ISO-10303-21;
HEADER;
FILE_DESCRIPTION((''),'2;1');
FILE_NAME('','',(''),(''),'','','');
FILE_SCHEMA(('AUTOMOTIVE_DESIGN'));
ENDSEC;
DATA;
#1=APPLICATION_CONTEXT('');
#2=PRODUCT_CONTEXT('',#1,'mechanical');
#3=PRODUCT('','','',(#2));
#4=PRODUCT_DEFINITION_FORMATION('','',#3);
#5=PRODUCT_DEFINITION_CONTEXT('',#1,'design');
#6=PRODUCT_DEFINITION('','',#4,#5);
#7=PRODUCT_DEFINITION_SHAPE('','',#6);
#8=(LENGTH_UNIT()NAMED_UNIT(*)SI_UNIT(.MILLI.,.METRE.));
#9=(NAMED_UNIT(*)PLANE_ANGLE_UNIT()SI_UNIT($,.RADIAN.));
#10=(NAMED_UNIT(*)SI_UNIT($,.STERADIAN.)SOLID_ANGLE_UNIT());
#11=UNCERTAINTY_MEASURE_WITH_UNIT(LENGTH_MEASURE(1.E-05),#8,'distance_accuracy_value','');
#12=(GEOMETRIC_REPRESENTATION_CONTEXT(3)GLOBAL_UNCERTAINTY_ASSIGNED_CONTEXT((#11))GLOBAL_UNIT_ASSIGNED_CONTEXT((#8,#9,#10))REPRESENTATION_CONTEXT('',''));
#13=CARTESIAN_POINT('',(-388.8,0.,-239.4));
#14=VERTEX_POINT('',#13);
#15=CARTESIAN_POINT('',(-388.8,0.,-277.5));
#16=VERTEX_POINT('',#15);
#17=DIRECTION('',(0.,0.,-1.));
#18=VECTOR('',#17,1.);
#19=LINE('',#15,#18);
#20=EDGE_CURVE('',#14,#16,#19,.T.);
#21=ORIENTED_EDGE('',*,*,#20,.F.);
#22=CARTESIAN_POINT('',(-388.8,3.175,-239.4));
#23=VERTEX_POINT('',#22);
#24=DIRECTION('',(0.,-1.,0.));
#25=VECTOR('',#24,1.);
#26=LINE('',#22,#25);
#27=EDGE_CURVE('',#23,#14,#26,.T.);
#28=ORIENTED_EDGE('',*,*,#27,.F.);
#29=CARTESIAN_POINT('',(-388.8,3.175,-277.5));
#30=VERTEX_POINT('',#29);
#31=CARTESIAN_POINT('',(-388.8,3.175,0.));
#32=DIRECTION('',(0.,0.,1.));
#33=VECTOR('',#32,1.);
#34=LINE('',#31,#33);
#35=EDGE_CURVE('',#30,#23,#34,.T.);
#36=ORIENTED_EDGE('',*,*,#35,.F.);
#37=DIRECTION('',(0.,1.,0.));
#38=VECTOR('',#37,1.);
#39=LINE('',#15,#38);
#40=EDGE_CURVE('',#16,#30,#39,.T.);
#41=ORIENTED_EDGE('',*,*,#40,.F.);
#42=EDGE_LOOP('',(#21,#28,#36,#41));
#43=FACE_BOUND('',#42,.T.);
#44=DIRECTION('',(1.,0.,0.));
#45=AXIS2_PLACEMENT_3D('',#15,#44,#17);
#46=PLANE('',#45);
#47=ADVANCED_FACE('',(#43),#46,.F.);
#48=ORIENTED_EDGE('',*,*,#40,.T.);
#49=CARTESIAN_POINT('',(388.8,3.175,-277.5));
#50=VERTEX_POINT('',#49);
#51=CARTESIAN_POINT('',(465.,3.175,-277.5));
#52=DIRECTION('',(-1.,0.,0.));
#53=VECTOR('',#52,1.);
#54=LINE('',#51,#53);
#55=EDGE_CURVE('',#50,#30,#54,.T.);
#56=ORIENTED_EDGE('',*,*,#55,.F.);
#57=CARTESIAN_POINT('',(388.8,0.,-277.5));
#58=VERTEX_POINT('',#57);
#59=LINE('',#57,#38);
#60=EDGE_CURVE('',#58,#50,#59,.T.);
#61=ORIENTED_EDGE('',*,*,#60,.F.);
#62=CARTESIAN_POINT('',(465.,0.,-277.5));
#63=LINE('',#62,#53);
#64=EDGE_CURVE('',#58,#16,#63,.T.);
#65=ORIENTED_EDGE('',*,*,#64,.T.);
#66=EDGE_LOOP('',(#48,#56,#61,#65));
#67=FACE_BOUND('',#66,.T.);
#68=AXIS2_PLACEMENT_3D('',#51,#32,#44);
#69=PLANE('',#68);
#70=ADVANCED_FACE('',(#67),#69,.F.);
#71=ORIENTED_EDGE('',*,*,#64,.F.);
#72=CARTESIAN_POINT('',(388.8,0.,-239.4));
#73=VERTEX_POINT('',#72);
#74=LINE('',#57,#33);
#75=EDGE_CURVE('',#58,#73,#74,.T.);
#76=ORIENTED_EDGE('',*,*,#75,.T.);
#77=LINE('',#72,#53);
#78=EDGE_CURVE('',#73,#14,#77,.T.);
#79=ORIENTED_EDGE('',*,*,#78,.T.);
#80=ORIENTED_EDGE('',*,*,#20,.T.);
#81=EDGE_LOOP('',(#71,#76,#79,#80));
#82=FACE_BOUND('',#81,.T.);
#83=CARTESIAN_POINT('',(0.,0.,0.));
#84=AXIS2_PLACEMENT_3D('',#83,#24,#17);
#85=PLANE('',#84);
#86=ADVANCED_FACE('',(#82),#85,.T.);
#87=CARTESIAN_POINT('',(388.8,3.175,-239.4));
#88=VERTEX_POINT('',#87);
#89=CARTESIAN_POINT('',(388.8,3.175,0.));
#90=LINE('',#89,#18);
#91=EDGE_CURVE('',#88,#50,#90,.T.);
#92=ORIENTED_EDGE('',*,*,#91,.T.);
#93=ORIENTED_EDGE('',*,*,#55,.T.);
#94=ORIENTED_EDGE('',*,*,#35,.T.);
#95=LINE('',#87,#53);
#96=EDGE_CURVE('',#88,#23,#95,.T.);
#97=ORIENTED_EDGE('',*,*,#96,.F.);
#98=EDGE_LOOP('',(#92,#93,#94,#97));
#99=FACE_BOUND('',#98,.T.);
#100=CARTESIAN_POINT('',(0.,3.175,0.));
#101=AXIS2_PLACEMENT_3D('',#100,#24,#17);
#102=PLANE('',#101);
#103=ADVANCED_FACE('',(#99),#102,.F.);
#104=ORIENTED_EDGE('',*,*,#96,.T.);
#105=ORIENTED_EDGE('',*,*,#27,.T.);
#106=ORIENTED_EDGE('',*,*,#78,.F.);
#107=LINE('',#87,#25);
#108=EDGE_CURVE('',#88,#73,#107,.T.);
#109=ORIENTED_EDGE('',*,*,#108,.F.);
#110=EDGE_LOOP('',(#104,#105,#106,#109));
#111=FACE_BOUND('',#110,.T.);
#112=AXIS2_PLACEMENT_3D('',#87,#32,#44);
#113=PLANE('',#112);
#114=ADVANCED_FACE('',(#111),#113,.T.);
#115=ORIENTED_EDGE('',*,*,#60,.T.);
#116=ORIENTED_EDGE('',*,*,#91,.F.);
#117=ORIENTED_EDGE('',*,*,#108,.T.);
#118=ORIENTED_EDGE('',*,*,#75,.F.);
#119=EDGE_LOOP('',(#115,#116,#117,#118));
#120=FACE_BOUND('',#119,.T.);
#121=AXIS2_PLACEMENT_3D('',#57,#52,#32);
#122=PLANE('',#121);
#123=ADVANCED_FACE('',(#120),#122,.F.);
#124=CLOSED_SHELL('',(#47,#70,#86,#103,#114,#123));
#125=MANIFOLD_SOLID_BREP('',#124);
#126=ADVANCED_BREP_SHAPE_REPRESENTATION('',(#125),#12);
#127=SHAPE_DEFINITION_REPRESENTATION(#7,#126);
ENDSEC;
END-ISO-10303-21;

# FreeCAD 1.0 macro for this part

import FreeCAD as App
import Part
import Sketcher
from FreeCAD import Vector


def add_polygon(sketch, points):
    """Adds a closed chain of lines whose ends are joined by coincident constraints."""
    first, n = sketch.GeometryCount, len(points)
    for a, b in zip(points, points[1:] + points[:1]):
        sketch.addGeometry(Part.LineSegment(App.Vector(*a, 0), App.Vector(*b, 0)), False)
    for i in range(n):
        sketch.addConstraint(Sketcher.Constraint("Coincident", first + i, 2, first + (i + 1) % n, 1))

doc = App.newDocument("Part")
params = doc.addObject("Spreadsheet::Sheet", "Params")
for row, (alias, value) in enumerate([
    ("sketch1_width", "930 mm"),
    ("sketch1_height", "555 mm"),
    ("sketch1_width2", "777.6 mm"),
    ("sketch1_height2", "478.8 mm"),
    ("pad1_length", "3.175 mm"),
    ("sketch2_width", "930 mm"),
    ("sketch2_height", "555 mm"),
    ("sketch2_width2", "76.2 mm"),
    ("sketch2_height2", "516.9 mm"),
], start=1):
    params.set(f"A{row}", alias)
    params.set(f"B{row}", "=" + value)
    params.setAlias(f"B{row}", alias)

body = doc.addObject("PartDesign::Body", "Body")

# Sketch on XZ plane
sketch1 = body.newObject("Sketcher::SketchObject", "Sketch")
sketch1.AttachmentSupport = (doc.getObject("XZ_Plane"), [""])
sketch1.MapMode = "FlatFace"
add_polygon(sketch1, [(-465, -278), (-465, 278), (465, 278), (465, -278)])  # lines 0-3
add_polygon(sketch1, [(389, 239), (-389, 239), (-389, -239), (389, -239)])  # lines 4-7
sketch1.addConstraint([
    Sketcher.Constraint("Vertical", 0),
    Sketcher.Constraint("Horizontal", 1),
    Sketcher.Constraint("Vertical", 2),
    Sketcher.Constraint("Horizontal", 3),
    Sketcher.Constraint("Horizontal", 4),
    Sketcher.Constraint("Vertical", 5),
    Sketcher.Constraint("Horizontal", 6),
    Sketcher.Constraint("Vertical", 7),
    Sketcher.Constraint("Symmetric", 0, 2, 2, 2, -1, 1),
    Sketcher.Constraint("Symmetric", 4, 2, 6, 2, -1, 1),
    Sketcher.Constraint("DistanceX", 1, 1, 1, 2, 930.0),
    Sketcher.Constraint("DistanceY", 0, 1, 0, 2, 555.0),
    Sketcher.Constraint("DistanceX", 4, 2, 4, 1, 777.6),
    Sketcher.Constraint("DistanceY", 5, 2, 5, 1, 478.8),
])
sketch1.setExpression("Constraints[18]", "Params.sketch1_width")
sketch1.setExpression("Constraints[19]", "Params.sketch1_height")
sketch1.setExpression("Constraints[20]", "Params.sketch1_width2")
sketch1.setExpression("Constraints[21]", "Params.sketch1_height2")
pad1 = body.newObject("PartDesign::Pad", "Pad")
pad1.Profile = sketch1
pad1.setExpression("Length", "Params.pad1_length")
pad1.Reversed = True

# Sketch on XZ plane
sketch2 = body.newObject("Sketcher::SketchObject", "Sketch001")
sketch2.AttachmentSupport = (doc.getObject("XZ_Plane"), [""])
sketch2.MapMode = "FlatFace"
sketch2.AttachmentOffset = App.Placement(Vector(0, 0, -3.175), App.Rotation())
add_polygon(sketch2, [(-389, -278), (-465, -278), (-465, 278), (465, 278), (465, -278), (389, -278), (389, 239), (-389, 239)])  # lines 0-7
sketch2.addConstraint([
    Sketcher.Constraint("Horizontal", 0),
    Sketcher.Constraint("Vertical", 1),
    Sketcher.Constraint("Horizontal", 2),
    Sketcher.Constraint("Vertical", 3),
    Sketcher.Constraint("Horizontal", 4),
    Sketcher.Constraint("Vertical", 5),
    Sketcher.Constraint("Horizontal", 6),
    Sketcher.Constraint("Vertical", 7),
    Sketcher.Constraint("Symmetric", 0, 2, 2, 2, -1, 1),
    Sketcher.Constraint("Symmetric", 4, 2, 7, 2, -2),
    Sketcher.Constraint("DistanceX", 2, 1, 2, 2, 930.0),
    Sketcher.Constraint("DistanceY", 1, 1, 1, 2, 555.0),
    Sketcher.Constraint("DistanceX", 0, 2, 0, 1, 76.2),
    Sketcher.Constraint("DistanceY", 5, 1, 5, 2, 516.9),
])
sketch2.setExpression("Constraints[18]", "Params.sketch2_width")
sketch2.setExpression("Constraints[19]", "Params.sketch2_height")
sketch2.setExpression("Constraints[20]", "Params.sketch2_width2")
sketch2.setExpression("Constraints[21]", "Params.sketch2_height2")
pocket1 = body.newObject("PartDesign::Pocket", "Pocket")
pocket1.Profile = sketch2
pocket1.Type = "ThroughAll"
pocket1.Midplane = True

doc.recompute()
